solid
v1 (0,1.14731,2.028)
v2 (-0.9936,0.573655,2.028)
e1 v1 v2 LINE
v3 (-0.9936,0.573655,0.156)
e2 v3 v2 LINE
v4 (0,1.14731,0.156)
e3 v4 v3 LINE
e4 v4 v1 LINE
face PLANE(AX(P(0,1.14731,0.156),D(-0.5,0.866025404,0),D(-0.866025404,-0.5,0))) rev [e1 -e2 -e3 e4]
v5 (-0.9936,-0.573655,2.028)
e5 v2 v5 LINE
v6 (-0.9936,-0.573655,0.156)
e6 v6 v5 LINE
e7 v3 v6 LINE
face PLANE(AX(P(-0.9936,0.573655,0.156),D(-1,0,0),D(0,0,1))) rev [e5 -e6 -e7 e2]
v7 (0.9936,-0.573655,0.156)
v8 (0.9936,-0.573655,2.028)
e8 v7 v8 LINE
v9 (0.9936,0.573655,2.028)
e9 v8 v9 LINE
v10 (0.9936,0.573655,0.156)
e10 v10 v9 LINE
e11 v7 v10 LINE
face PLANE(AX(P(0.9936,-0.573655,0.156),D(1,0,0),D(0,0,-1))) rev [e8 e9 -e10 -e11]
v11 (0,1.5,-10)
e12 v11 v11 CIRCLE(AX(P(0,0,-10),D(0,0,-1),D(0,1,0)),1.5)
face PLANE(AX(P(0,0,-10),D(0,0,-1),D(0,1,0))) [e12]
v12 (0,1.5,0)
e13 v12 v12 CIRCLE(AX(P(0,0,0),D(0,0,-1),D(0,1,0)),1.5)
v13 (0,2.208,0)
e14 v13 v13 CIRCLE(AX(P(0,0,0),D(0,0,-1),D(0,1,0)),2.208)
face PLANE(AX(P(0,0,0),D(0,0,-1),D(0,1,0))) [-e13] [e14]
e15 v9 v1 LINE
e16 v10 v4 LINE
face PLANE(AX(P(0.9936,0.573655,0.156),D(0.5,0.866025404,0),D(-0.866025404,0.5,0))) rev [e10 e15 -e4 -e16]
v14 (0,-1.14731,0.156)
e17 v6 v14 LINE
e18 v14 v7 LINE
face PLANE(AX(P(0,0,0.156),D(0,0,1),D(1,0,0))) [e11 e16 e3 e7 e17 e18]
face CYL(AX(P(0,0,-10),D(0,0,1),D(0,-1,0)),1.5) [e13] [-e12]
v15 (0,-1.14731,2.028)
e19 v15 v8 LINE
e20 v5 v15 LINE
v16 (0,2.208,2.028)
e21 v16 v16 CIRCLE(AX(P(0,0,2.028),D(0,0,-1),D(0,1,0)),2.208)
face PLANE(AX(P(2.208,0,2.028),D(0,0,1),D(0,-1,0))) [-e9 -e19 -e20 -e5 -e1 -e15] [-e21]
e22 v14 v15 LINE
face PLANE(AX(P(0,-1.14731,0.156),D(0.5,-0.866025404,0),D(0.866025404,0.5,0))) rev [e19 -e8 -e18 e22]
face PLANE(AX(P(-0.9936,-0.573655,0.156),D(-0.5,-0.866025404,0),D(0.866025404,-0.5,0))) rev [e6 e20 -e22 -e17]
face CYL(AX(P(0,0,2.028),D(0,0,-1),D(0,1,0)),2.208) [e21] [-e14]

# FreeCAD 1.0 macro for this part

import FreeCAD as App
import Part
import Sketcher
from FreeCAD import Vector
Q = App.Units.Quantity


def add_polygon(sketch, points):
    """Adds a closed chain of lines whose ends are joined by coincident constraints."""
    first, n = sketch.GeometryCount, len(points)
    for a, b in zip(points, points[1:] + points[:1]):
        sketch.addGeometry(Part.LineSegment(App.Vector(*a, 0), App.Vector(*b, 0)), False)
    for i in range(n):
        sketch.addConstraint(Sketcher.Constraint("Coincident", first + i, 2, first + (i + 1) % n, 1))

doc = App.newDocument("Part")
body = doc.addObject("PartDesign::Body", "Body")

# Sketch on XZ plane
sketch1 = body.newObject("Sketcher::SketchObject", "Sketch")
sketch1.AttachmentSupport = (doc.getObject("XZ_Plane"), [""])
sketch1.MapMode = "FlatFace"
add_polygon(sketch1, [(0, 2), (0, 0), (2.2, 0), (2.2, 2)])  # lines 0-3
sketch1.addConstraint([
    Sketcher.Constraint("Vertical", 0),
    Sketcher.Constraint("Horizontal", 1),
    Sketcher.Constraint("Vertical", 2),
    Sketcher.Constraint("Horizontal", 3),
    Sketcher.Constraint("Coincident", 0, 2, -1, 1),
    Sketcher.Constraint("DistanceX", 1, 1, 1, 2, Q("2.208 mm")),
    Sketcher.Constraint("DistanceY", 0, 2, 0, 1, Q("2.028 mm")),
])
revolution = body.newObject("PartDesign::Revolution", "Revolution")
revolution.Profile = sketch1
revolution.ReferenceAxis = (sketch1, ["V_Axis"])
revolution.Angle = 360

# Sketch on XY plane
sketch2 = body.newObject("Sketcher::SketchObject", "Sketch001")
sketch2.AttachmentSupport = (doc.getObject("XY_Plane"), [""])
sketch2.MapMode = "FlatFace"
sketch2.addGeometry(Part.Circle(Vector(0, 0, 0), Vector(0, 0, 1), 1.5), False)
sketch2.addConstraint([
    Sketcher.Constraint("Coincident", 0, 3, -1, 1),
    Sketcher.Constraint("Diameter", 0, Q("3 mm")),
])
pad1 = body.newObject("PartDesign::Pad", "Pad")
pad1.Profile = sketch2
pad1.Length = 10
pad1.Reversed = True

# Sketch on XY plane
sketch3 = body.newObject("Sketcher::SketchObject", "Sketch002")
sketch3.AttachmentSupport = (doc.getObject("XY_Plane"), [""])
sketch3.MapMode = "FlatFace"
sketch3.AttachmentOffset = App.Placement(Vector(0, 0, 2.028), App.Rotation())
add_polygon(sketch3, [(1, -0.6), (1, 0.6), (0, 1.1), (-1, 0.6), (-1, -0.6), (0, -1.1)])  # lines 0-5
sketch3.addConstraint([
    Sketcher.Constraint("Vertical", 0),
    Sketcher.Constraint("Vertical", 3),
    Sketcher.Constraint("Symmetric", 0, 2, 3, 2, -1, 1),
    Sketcher.Constraint("Symmetric", 1, 2, 4, 2, -1, 1),
    Sketcher.Constraint("PointOnObject", 1, 2, -2),
    Sketcher.Constraint("Parallel", 2, 5),
    Sketcher.Constraint("Horizontal", 0, 2, 2, 2),
    Sketcher.Constraint("Angle", 1, Q("150 deg")),
    Sketcher.Constraint("DistanceY", 0, 1, 0, 2, Q("1.14731 mm")),
    Sketcher.Constraint("DistanceX", -1, 1, 0, 2, Q("0.9936 mm")),
])
pocket1 = body.newObject("PartDesign::Pocket", "Pocket")
pocket1.Profile = sketch3
pocket1.Length = 1.872

doc.recompute()
